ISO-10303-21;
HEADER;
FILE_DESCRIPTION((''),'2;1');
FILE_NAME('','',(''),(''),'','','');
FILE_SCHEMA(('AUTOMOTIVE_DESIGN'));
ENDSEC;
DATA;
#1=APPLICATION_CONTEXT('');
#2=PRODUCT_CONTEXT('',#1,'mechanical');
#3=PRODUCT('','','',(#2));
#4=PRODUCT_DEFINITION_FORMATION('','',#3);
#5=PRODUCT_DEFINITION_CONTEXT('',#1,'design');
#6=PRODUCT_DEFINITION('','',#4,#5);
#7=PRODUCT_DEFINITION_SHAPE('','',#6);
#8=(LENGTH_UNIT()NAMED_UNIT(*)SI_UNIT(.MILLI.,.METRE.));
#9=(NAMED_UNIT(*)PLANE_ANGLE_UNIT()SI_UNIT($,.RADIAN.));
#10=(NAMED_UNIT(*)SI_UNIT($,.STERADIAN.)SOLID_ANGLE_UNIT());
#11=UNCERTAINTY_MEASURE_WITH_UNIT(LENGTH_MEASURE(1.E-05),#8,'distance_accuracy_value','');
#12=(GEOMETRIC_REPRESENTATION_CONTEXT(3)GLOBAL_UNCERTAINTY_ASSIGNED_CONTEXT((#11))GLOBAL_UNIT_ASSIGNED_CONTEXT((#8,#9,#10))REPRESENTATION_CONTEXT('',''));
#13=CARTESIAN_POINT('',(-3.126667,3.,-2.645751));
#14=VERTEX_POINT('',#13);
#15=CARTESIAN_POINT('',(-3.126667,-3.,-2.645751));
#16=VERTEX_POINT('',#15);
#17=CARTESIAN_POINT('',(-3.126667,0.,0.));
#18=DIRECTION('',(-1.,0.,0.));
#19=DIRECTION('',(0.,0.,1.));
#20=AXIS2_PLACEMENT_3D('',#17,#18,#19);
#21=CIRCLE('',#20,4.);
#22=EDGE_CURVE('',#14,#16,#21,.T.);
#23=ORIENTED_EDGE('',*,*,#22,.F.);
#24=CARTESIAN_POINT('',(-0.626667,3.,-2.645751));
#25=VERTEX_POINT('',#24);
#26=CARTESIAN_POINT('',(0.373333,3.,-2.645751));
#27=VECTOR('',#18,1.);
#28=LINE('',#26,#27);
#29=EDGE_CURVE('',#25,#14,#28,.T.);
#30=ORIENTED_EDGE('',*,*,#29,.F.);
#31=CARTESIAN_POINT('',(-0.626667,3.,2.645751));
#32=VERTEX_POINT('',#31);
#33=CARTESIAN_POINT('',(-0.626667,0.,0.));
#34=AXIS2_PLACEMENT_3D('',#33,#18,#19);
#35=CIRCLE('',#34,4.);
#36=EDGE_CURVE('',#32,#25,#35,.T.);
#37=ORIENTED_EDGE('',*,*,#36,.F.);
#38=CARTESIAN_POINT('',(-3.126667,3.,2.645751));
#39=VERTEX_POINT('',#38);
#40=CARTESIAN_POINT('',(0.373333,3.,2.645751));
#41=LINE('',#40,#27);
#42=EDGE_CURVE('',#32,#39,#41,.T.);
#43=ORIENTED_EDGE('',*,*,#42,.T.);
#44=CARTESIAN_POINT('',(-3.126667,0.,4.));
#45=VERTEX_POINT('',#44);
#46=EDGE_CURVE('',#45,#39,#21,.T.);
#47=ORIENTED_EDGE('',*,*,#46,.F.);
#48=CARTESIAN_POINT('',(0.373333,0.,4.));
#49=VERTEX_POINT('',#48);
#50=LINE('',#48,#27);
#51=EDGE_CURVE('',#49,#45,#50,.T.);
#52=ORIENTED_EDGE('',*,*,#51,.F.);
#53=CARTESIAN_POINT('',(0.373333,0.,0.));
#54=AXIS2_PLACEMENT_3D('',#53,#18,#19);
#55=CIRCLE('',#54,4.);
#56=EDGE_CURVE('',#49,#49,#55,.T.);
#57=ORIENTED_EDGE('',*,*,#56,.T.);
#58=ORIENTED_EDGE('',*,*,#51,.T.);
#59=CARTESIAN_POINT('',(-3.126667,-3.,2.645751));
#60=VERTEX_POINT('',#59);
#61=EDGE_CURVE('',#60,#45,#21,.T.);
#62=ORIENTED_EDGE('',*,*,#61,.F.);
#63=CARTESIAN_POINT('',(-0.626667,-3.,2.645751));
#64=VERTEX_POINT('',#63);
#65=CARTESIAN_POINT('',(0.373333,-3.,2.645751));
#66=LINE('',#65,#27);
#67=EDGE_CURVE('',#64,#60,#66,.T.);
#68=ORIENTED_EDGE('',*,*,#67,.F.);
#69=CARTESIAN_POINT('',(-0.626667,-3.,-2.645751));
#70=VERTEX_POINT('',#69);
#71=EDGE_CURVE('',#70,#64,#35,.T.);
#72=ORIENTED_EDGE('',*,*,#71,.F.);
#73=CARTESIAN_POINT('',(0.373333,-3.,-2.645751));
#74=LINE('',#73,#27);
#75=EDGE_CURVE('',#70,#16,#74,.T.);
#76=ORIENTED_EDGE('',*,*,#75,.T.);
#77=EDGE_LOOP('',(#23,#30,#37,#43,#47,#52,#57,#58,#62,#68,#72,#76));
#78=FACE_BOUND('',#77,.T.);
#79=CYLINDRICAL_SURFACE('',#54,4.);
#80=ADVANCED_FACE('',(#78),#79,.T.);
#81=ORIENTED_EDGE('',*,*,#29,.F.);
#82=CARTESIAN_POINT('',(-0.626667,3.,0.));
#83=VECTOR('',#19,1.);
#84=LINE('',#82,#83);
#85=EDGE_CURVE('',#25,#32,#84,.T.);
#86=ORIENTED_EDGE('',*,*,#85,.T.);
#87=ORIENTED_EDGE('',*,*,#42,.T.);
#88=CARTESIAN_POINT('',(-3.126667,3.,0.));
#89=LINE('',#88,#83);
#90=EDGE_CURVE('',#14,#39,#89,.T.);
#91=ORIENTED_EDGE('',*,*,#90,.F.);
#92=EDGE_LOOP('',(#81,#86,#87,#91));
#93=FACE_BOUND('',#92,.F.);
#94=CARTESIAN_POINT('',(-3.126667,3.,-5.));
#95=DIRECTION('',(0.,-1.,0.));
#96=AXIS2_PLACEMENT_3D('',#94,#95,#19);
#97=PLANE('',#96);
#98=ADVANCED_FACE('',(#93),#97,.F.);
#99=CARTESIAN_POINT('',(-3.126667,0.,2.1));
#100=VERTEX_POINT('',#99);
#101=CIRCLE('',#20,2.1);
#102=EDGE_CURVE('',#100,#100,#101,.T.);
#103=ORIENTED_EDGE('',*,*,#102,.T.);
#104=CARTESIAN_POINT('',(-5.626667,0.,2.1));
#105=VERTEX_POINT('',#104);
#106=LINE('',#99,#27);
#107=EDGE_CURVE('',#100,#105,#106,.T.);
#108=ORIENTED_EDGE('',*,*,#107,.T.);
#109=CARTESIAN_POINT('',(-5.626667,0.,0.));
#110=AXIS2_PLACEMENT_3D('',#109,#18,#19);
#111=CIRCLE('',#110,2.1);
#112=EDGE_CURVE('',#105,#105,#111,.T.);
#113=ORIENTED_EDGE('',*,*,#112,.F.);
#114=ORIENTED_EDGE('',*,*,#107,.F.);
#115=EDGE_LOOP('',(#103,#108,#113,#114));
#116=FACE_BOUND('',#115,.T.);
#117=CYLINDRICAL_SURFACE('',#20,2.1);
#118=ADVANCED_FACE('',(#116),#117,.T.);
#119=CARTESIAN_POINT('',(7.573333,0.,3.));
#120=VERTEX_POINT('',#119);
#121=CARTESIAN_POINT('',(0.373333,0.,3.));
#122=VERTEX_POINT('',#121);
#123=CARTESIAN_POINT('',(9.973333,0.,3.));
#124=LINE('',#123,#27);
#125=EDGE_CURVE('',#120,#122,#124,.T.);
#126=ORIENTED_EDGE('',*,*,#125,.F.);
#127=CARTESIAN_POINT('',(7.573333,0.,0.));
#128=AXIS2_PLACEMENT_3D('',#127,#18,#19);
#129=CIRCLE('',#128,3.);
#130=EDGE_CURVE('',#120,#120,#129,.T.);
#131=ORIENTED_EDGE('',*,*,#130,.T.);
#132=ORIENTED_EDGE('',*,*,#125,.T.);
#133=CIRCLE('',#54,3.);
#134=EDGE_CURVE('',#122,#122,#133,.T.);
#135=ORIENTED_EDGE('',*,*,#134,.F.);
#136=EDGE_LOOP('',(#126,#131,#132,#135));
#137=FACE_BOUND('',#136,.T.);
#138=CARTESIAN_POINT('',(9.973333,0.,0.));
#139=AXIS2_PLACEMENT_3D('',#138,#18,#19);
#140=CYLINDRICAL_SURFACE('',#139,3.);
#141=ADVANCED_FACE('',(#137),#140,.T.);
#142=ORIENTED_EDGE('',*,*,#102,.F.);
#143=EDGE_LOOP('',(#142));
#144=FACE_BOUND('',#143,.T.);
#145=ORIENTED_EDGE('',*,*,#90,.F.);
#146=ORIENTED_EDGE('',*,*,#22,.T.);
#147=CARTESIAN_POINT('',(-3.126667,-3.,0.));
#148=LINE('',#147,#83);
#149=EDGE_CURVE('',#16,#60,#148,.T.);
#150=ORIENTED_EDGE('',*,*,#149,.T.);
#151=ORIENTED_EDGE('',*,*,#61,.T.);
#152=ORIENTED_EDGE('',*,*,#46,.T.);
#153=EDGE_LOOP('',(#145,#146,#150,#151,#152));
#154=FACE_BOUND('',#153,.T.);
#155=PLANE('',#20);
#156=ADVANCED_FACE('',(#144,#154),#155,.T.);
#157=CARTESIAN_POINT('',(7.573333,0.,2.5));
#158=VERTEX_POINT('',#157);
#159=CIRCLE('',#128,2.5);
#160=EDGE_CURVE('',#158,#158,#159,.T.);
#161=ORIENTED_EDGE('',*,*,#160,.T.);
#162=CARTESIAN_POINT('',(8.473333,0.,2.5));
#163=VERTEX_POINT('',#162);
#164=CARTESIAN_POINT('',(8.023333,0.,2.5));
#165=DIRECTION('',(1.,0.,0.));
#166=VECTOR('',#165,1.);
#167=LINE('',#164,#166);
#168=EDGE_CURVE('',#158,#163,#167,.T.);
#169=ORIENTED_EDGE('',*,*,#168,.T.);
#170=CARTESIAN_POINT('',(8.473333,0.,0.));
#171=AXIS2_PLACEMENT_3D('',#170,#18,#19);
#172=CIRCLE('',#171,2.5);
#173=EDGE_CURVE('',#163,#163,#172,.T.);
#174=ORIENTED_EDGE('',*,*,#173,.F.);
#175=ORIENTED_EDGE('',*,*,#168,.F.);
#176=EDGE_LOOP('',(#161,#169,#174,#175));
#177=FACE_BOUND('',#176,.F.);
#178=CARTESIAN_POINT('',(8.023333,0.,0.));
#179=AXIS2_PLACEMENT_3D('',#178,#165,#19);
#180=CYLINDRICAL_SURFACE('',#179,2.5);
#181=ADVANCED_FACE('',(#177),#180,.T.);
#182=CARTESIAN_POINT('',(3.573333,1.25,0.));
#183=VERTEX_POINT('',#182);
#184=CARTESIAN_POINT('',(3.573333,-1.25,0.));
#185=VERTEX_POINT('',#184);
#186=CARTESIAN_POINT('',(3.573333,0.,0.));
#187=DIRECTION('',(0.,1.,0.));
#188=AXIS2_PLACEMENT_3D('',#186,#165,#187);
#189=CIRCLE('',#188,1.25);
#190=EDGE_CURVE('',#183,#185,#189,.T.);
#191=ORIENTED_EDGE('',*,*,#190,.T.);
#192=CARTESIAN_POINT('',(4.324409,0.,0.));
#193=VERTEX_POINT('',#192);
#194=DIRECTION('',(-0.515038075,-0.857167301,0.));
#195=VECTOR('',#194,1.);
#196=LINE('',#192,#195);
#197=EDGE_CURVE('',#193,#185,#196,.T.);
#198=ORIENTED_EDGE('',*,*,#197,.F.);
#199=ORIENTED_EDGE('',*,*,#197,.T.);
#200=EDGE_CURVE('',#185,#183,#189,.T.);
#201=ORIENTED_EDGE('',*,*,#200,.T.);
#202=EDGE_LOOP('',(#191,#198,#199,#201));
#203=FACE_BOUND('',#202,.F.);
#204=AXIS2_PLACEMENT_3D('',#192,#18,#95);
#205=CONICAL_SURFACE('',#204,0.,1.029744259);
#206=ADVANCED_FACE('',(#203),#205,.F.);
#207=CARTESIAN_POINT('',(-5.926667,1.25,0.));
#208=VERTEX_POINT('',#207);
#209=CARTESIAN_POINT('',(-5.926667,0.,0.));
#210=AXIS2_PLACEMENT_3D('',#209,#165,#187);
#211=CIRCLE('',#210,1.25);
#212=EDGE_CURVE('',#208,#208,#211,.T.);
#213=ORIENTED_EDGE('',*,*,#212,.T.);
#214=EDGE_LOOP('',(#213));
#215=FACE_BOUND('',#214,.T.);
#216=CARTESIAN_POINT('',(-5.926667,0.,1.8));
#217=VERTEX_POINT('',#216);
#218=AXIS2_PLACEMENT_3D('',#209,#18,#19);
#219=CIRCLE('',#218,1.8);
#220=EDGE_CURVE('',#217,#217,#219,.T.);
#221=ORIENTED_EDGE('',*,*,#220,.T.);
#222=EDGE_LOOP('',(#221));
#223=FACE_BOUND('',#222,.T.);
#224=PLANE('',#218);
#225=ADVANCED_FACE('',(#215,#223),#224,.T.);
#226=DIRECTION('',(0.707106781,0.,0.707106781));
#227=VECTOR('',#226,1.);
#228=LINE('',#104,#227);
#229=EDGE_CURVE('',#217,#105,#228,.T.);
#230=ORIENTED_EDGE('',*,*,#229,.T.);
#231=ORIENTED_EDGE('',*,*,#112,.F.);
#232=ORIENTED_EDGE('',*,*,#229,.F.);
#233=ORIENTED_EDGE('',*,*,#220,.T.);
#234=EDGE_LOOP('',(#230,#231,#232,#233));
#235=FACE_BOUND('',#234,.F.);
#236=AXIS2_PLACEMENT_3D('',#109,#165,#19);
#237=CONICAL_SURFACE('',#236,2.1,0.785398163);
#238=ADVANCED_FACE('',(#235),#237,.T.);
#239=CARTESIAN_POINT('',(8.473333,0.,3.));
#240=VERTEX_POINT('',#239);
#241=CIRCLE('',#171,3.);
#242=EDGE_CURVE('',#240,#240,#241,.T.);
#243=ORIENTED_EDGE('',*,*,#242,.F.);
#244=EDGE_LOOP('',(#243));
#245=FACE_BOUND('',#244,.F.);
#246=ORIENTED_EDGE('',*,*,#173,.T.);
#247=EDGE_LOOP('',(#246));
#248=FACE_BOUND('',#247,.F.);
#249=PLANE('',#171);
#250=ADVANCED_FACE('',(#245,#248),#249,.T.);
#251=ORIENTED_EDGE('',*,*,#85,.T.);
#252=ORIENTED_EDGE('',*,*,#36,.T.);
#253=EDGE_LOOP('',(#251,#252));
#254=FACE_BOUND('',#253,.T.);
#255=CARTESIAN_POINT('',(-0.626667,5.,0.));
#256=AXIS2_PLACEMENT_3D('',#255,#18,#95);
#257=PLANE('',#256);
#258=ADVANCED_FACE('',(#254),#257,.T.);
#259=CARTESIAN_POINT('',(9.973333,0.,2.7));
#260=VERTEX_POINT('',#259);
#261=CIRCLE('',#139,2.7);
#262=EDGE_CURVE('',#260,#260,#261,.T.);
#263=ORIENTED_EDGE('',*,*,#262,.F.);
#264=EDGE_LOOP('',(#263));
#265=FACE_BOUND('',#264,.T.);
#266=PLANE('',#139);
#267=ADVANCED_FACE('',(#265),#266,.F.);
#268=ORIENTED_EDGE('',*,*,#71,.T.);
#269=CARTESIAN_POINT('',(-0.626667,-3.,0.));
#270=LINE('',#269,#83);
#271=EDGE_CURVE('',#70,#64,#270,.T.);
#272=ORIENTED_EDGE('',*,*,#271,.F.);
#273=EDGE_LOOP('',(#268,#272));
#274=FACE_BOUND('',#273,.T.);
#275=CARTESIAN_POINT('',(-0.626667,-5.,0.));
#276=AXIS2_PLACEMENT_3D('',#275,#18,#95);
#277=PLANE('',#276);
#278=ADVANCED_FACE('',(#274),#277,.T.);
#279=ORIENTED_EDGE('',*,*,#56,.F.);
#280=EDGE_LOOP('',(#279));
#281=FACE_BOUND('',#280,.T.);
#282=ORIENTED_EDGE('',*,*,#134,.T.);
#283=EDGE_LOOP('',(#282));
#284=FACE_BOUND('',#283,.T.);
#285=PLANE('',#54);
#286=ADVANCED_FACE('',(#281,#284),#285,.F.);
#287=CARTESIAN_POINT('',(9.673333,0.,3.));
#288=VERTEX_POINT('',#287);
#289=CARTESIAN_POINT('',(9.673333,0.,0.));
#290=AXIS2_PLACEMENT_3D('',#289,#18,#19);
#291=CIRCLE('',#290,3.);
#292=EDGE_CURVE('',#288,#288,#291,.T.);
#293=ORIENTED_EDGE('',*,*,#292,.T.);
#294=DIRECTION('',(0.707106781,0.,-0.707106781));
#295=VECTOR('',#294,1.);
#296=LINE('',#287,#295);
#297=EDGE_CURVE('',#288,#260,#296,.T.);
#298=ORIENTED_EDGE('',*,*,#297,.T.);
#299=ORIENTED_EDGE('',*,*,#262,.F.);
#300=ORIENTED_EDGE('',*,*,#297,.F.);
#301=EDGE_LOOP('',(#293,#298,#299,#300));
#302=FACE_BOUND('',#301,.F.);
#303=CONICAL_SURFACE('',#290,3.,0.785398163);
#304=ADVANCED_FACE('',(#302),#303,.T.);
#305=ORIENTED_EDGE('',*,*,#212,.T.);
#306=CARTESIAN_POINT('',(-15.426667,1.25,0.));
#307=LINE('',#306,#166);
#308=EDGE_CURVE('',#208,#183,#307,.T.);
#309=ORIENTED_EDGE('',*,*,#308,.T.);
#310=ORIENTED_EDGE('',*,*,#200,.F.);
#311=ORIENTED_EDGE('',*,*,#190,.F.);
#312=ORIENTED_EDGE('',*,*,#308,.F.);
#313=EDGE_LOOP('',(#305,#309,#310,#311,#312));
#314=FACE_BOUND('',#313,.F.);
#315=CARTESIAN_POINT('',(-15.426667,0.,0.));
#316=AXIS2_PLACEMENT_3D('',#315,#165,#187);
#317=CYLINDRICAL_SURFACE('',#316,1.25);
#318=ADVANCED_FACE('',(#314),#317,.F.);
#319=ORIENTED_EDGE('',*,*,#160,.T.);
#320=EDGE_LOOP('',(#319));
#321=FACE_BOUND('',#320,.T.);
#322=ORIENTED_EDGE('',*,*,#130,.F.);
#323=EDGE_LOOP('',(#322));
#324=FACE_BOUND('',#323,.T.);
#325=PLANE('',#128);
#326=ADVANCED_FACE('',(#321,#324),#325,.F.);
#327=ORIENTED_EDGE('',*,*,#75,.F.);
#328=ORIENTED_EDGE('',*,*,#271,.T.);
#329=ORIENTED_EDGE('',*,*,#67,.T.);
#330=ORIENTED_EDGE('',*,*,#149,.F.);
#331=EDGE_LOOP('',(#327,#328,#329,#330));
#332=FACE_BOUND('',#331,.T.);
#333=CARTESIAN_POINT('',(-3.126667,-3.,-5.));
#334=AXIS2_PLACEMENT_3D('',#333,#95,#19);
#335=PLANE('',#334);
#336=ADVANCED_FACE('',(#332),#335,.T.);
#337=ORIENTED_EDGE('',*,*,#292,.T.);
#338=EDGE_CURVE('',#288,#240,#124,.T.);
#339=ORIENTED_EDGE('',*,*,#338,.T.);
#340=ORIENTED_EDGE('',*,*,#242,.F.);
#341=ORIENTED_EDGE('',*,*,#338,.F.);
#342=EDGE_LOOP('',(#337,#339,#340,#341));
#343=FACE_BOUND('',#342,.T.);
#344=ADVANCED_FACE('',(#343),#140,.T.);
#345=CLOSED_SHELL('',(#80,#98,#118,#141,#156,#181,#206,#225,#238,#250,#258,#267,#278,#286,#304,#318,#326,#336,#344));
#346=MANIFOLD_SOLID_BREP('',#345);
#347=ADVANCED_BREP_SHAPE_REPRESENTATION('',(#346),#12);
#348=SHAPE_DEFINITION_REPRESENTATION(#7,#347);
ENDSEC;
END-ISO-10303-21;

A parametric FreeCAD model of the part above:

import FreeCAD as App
import Part
import Sketcher
from FreeCAD import Vector


def edges_at(feature, points):
    """Names of the edges that pass closest to the given points."""
    edges = feature.Shape.Edges
    near = lambda p: min(range(len(edges)), key=lambda i: edges[i].distToShape(Part.Vertex(*p))[0])
    return sorted({f"Edge{near(p) + 1}" for p in points})

doc = App.newDocument("Part")
params = doc.addObject("Spreadsheet::Sheet", "Params")
for row, (alias, value) in enumerate([
    ("sketch1_height", "3 mm"),
    ("sketch1_height2", "1 mm"),
    ("sketch1_width", "15.9 mm"),
    ("sketch1_width2", "9.6 mm"),
    ("sketch1_width3", "3.5 mm"),
    ("revolution_angle", "360 deg"),
    ("sketch2_width", "4 mm"),
    ("sketch2_height", "10 mm"),
    ("pocket1_length", "2.5 mm"),
    ("sketch3_diameter", "2.5 mm"),
    ("hole_diameter", "2.5 mm"),
    ("hole_depth", "9.5 mm"),
    ("sketch4_height", "2 mm"),
    ("sketch4_width", "0.9 mm"),
    ("groove_angle", "360 deg"),
    ("chamfer_size", "0.3 mm"),
], start=1):
    params.set(f"A{row}", alias)
    params.set(f"B{row}", "=" + value)
    params.setAlias(f"B{row}", alias)

body = doc.addObject("PartDesign::Body", "Body")

# Sketch on XZ plane
sketch1 = body.newObject("Sketcher::SketchObject", "Sketch")
sketch1.AttachmentSupport = (doc.getObject("XZ_Plane"), [""])
sketch1.MapMode = "FlatFace"
sketch1.addGeometry(Part.LineSegment(Vector(-5.9, 2.1, 0), Vector(-5.9, 0, 0)), False)
sketch1.addGeometry(Part.LineSegment(Vector(-5.9, 0, 0), Vector(10, 0, 0)), False)
sketch1.addGeometry(Part.LineSegment(Vector(10, 0, 0), Vector(10, 3, 0)), False)
sketch1.addGeometry(Part.LineSegment(Vector(10, 3, 0), Vector(0.4, 3, 0)), False)
sketch1.addGeometry(Part.LineSegment(Vector(0.4, 3, 0), Vector(0.4, 4, 0)), False)
sketch1.addGeometry(Part.LineSegment(Vector(0.4, 4, 0), Vector(-3.1, 4, 0)), False)
sketch1.addGeometry(Part.LineSegment(Vector(-3.1, 4, 0), Vector(-3.1, 2.1, 0)), False)
sketch1.addGeometry(Part.LineSegment(Vector(-3.1, 2.1, 0), Vector(-5.9, 2.1, 0)), False)
sketch1.addConstraint(Sketcher.Constraint("Coincident", 0, 2, 1, 1))
sketch1.addConstraint(Sketcher.Constraint("Coincident", 1, 2, 2, 1))
sketch1.addConstraint(Sketcher.Constraint("Coincident", 2, 2, 3, 1))
sketch1.addConstraint(Sketcher.Constraint("Coincident", 3, 2, 4, 1))
sketch1.addConstraint(Sketcher.Constraint("Coincident", 4, 2, 5, 1))
sketch1.addConstraint(Sketcher.Constraint("Coincident", 5, 2, 6, 1))
sketch1.addConstraint(Sketcher.Constraint("Coincident", 6, 2, 7, 1))
sketch1.addConstraint(Sketcher.Constraint("Coincident", 7, 2, 0, 1))
sketch1.addConstraint(Sketcher.Constraint("Vertical", 0))
sketch1.addConstraint(Sketcher.Constraint("Horizontal", 1))
sketch1.addConstraint(Sketcher.Constraint("Vertical", 2))
sketch1.addConstraint(Sketcher.Constraint("Horizontal", 3))
sketch1.addConstraint(Sketcher.Constraint("Vertical", 4))
sketch1.addConstraint(Sketcher.Constraint("Horizontal", 5))
sketch1.addConstraint(Sketcher.Constraint("Vertical", 6))
sketch1.addConstraint(Sketcher.Constraint("Horizontal", 7))
sketch1.addConstraint(Sketcher.Constraint("PointOnObject", 0, 2, -1))
sketch1.addConstraint(Sketcher.Constraint("DistanceY", 2, 1, 2, 2, 3.0))
sketch1.addConstraint(Sketcher.Constraint("DistanceY", 4, 1, 4, 2, 1.0))
sketch1.addConstraint(Sketcher.Constraint("DistanceX", 1, 1, 1, 2, 15.9))
sketch1.addConstraint(Sketcher.Constraint("DistanceX", 3, 2, 3, 1, 9.6))
sketch1.addConstraint(Sketcher.Constraint("DistanceX", 5, 2, 5, 1, 3.5))
sketch1.addConstraint(Sketcher.Constraint("DistanceY", 0, 2, 0, 1, 2.1))
sketch1.addConstraint(Sketcher.Constraint("DistanceX", 0, 2, -1, 1, 5.926667))
sketch1.setExpression("Constraints[17]", "Params.sketch1_height")
sketch1.setExpression("Constraints[18]", "Params.sketch1_height2")
sketch1.setExpression("Constraints[19]", "Params.sketch1_width")
sketch1.setExpression("Constraints[20]", "Params.sketch1_width2")
sketch1.setExpression("Constraints[21]", "Params.sketch1_width3")
revolution = body.newObject("PartDesign::Revolution", "Revolution")
revolution.Profile = sketch1
revolution.ReferenceAxis = (sketch1, ["H_Axis"])
revolution.setExpression("Angle", "Params.revolution_angle")

# Sketch on YZ plane
sketch2 = body.newObject("Sketcher::SketchObject", "Sketch001")
sketch2.AttachmentSupport = (doc.getObject("YZ_Plane"), [""])
sketch2.MapMode = "FlatFace"
sketch2.AttachmentOffset = App.Placement(Vector(0, 0, -3.126667), App.Rotation())
sketch2.addGeometry(Part.LineSegment(Vector(-3, 5, 0), Vector(-3, -5, 0)), False)
sketch2.addGeometry(Part.LineSegment(Vector(-3, -5, 0), Vector(-7, -5, 0)), False)
sketch2.addGeometry(Part.LineSegment(Vector(-7, -5, 0), Vector(-7, 5, 0)), False)
sketch2.addGeometry(Part.LineSegment(Vector(-7, 5, 0), Vector(-3, 5, 0)), False)
sketch2.addGeometry(Part.LineSegment(Vector(7, 5, 0), Vector(7, -5, 0)), False)
sketch2.addGeometry(Part.LineSegment(Vector(7, -5, 0), Vector(3, -5, 0)), False)
sketch2.addGeometry(Part.LineSegment(Vector(3, -5, 0), Vector(3, 5, 0)), False)
sketch2.addGeometry(Part.LineSegment(Vector(3, 5, 0), Vector(7, 5, 0)), False)
sketch2.addConstraint(Sketcher.Constraint("Coincident", 0, 2, 1, 1))
sketch2.addConstraint(Sketcher.Constraint("Coincident", 1, 2, 2, 1))
sketch2.addConstraint(Sketcher.Constraint("Coincident", 2, 2, 3, 1))
sketch2.addConstraint(Sketcher.Constraint("Coincident", 3, 2, 0, 1))
sketch2.addConstraint(Sketcher.Constraint("Coincident", 4, 2, 5, 1))
sketch2.addConstraint(Sketcher.Constraint("Coincident", 5, 2, 6, 1))
sketch2.addConstraint(Sketcher.Constraint("Coincident", 6, 2, 7, 1))
sketch2.addConstraint(Sketcher.Constraint("Coincident", 7, 2, 4, 1))
sketch2.addConstraint(Sketcher.Constraint("Vertical", 0))
sketch2.addConstraint(Sketcher.Constraint("Horizontal", 1))
sketch2.addConstraint(Sketcher.Constraint("Vertical", 2))
sketch2.addConstraint(Sketcher.Constraint("Horizontal", 3))
sketch2.addConstraint(Sketcher.Constraint("Vertical", 4))
sketch2.addConstraint(Sketcher.Constraint("Horizontal", 5))
sketch2.addConstraint(Sketcher.Constraint("Vertical", 6))
sketch2.addConstraint(Sketcher.Constraint("Horizontal", 7))
sketch2.addConstraint(Sketcher.Constraint("Symmetric", 2, 2, 4, 2, -1, 1))
sketch2.addConstraint(Sketcher.Constraint("Symmetric", 0, 2, 6, 2, -1, 1))
sketch2.addConstraint(Sketcher.Constraint("Horizontal", 1, 2, 4, 2))
sketch2.addConstraint(Sketcher.Constraint("DistanceX", 1, 2, 1, 1, 4.0))
sketch2.addConstraint(Sketcher.Constraint("DistanceY", 0, 2, 0, 1, 10.0))
sketch2.addConstraint(Sketcher.Constraint("DistanceX", 0, 2, -1, 1, 3.0))
sketch2.setExpression("Constraints[19]", "Params.sketch2_width")
sketch2.setExpression("Constraints[20]", "Params.sketch2_height")
pocket1 = body.newObject("PartDesign::Pocket", "Pocket")
pocket1.Profile = sketch2
pocket1.setExpression("Length", "Params.pocket1_length")
pocket1.Reversed = True

# Sketch on YZ plane
sketch3 = body.newObject("Sketcher::SketchObject", "Sketch002")
sketch3.AttachmentSupport = (doc.getObject("YZ_Plane"), [""])
sketch3.MapMode = "FlatFace"
sketch3.AttachmentOffset = App.Placement(Vector(0, 0, -5.926667), App.Rotation())
sketch3.addGeometry(Part.Circle(Vector(0, 0, 0), Vector(0, 0, 1), 1.2), False)
sketch3.addConstraint(Sketcher.Constraint("Coincident", 0, 3, -1, 1))
sketch3.addConstraint(Sketcher.Constraint("Diameter", 0, 2.5))
sketch3.setExpression("Constraints[1]", "Params.sketch3_diameter")
doc.recompute()
hole = body.newObject("PartDesign::Hole", "Hole")
hole.Profile = sketch3
hole.ThreadType = "None"
hole.setExpression("Diameter", "Params.hole_diameter")
hole.DepthType = "Dimension"
hole.setExpression("Depth", "Params.hole_depth")
hole.DrillPoint = "Angled"
hole.DrillPointAngle = 118
hole.Reversed = True

# Sketch on XZ plane
sketch4 = body.newObject("Sketcher::SketchObject", "Sketch003")
sketch4.AttachmentSupport = (doc.getObject("XZ_Plane"), [""])
sketch4.MapMode = "FlatFace"
sketch4.addGeometry(Part.LineSegment(Vector(7.6, 4.5, 0), Vector(7.6, 2.5, 0)), False)
sketch4.addGeometry(Part.LineSegment(Vector(7.6, 2.5, 0), Vector(8.5, 2.5, 0)), False)
sketch4.addGeometry(Part.LineSegment(Vector(8.5, 2.5, 0), Vector(8.5, 4.5, 0)), False)
sketch4.addGeometry(Part.LineSegment(Vector(8.5, 4.5, 0), Vector(7.6, 4.5, 0)), False)
sketch4.addConstraint(Sketcher.Constraint("Coincident", 0, 2, 1, 1))
sketch4.addConstraint(Sketcher.Constraint("Coincident", 1, 2, 2, 1))
sketch4.addConstraint(Sketcher.Constraint("Coincident", 2, 2, 3, 1))
sketch4.addConstraint(Sketcher.Constraint("Coincident", 3, 2, 0, 1))
sketch4.addConstraint(Sketcher.Constraint("Vertical", 0))
sketch4.addConstraint(Sketcher.Constraint("Horizontal", 1))
sketch4.addConstraint(Sketcher.Constraint("Vertical", 2))
sketch4.addConstraint(Sketcher.Constraint("Horizontal", 3))
sketch4.addConstraint(Sketcher.Constraint("DistanceY", 0, 2, 0, 1, 2.0))
sketch4.addConstraint(Sketcher.Constraint("DistanceX", 1, 1, 1, 2, 0.9))
sketch4.addConstraint(Sketcher.Constraint("DistanceY", -1, 1, 0, 2, 2.5))
sketch4.addConstraint(Sketcher.Constraint("DistanceX", -1, 1, 0, 2, 7.573333))
sketch4.setExpression("Constraints[8]", "Params.sketch4_height")
sketch4.setExpression("Constraints[9]", "Params.sketch4_width")
groove = body.newObject("PartDesign::Groove", "Groove")
groove.Profile = sketch4
groove.ReferenceAxis = (sketch4, ["H_Axis"])
groove.setExpression("Angle", "Params.groove_angle")
doc.recompute()

chamfer = body.newObject("PartDesign::Chamfer", "Chamfer")
chamfer.Base = (groove, edges_at(groove, [(9.973, 0, -3), (-5.927, 0, -2.1)]))
chamfer.setExpression("Size", "Params.chamfer_size")

doc.recompute()
